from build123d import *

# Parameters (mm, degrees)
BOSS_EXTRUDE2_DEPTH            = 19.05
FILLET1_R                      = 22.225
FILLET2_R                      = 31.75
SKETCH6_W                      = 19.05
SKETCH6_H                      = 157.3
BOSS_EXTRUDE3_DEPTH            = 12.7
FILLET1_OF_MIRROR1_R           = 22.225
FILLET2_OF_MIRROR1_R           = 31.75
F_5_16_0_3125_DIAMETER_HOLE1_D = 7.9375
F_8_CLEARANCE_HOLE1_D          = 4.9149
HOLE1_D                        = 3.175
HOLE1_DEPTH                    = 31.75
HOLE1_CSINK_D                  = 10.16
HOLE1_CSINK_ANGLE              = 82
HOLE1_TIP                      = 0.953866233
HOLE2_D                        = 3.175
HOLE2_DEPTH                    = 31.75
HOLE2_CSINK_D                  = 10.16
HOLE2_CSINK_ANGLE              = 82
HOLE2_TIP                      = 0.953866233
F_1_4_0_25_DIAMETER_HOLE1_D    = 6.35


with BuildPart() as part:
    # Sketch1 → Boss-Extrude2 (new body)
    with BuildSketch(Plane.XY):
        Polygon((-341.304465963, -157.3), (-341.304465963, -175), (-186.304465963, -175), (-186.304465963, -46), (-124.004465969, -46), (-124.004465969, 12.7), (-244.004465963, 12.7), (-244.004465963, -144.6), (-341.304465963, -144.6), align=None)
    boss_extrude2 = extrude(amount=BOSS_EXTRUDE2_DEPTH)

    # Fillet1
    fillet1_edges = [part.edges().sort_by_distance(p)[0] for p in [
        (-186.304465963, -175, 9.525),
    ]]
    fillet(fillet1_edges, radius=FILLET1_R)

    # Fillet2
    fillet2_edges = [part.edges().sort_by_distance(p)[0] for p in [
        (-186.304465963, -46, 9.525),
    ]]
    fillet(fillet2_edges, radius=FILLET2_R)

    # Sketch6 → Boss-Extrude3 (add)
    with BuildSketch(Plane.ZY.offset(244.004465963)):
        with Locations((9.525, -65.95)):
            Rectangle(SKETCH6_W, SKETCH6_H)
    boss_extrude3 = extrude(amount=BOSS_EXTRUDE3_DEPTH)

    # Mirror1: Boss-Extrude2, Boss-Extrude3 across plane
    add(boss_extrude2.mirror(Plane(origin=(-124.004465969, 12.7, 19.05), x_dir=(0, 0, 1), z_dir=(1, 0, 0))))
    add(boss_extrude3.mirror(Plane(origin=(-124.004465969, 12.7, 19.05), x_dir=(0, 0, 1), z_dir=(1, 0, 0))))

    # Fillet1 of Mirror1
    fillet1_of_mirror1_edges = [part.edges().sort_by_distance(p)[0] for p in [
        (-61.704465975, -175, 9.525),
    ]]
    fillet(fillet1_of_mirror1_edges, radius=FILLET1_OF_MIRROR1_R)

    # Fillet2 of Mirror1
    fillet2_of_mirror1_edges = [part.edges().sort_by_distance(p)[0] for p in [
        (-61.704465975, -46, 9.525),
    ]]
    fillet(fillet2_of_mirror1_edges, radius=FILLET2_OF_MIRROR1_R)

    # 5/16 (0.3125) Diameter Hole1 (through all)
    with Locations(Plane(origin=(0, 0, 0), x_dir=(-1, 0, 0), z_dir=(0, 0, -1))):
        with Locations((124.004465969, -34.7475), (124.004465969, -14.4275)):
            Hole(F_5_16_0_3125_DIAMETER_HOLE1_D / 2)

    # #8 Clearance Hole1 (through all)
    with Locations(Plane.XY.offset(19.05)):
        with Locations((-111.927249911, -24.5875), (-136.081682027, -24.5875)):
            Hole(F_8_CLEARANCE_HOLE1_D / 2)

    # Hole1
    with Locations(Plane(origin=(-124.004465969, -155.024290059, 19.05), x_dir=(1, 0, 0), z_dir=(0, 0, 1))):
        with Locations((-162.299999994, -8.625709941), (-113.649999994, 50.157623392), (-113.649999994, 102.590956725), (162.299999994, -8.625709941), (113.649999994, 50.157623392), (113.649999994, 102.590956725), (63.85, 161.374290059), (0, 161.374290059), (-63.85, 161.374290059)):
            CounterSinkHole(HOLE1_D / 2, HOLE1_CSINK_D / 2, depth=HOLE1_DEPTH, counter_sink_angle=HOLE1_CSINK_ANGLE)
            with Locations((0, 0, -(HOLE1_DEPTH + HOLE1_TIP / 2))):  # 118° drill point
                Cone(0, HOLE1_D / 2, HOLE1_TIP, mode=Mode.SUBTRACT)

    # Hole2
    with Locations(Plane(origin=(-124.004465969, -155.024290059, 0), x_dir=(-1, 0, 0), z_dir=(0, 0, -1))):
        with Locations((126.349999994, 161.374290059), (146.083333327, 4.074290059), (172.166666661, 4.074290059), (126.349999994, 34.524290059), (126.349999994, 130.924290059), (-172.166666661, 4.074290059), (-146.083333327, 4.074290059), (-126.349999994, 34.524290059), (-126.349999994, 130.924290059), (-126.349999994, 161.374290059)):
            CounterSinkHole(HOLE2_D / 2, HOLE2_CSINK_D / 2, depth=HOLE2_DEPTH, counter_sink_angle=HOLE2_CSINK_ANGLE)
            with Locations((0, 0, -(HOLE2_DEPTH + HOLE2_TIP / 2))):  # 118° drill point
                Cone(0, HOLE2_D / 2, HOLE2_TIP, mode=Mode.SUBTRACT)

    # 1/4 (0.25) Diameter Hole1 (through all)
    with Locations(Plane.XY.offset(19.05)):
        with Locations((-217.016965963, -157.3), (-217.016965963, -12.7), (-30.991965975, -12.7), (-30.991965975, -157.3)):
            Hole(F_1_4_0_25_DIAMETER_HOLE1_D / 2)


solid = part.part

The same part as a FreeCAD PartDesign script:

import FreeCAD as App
import Part
import Sketcher
Q = App.Units.Quantity


def edges_at(feature, points):
    """Names of the edges that pass closest to the given points."""
    edges = feature.Shape.Edges
    near = lambda p: min(range(len(edges)), key=lambda i: edges[i].distToShape(Part.Vertex(*p))[0])
    return sorted({f"Edge{near(p) + 1}" for p in points})

doc = App.newDocument("Part")
body = doc.addObject("PartDesign::Body", "Body")

sketch1 = body.newObject("Sketcher::SketchObject", "Sketch")
sketch1.AttachmentSupport = (doc.getObject("XY_Plane"), [""])
sketch1.MapMode = "FlatFace"
sketch1.addGeometry([
    Part.LineSegment(App.Vector(-341, -175, 0), App.Vector(-186, -175, 0)),
    Part.LineSegment(App.Vector(-186, -175, 0), App.Vector(-186, -46, 0)),
    Part.LineSegment(App.Vector(-186, -46, 0), App.Vector(-124, -46, 0)),
    Part.LineSegment(App.Vector(-124, -46, 0), App.Vector(-124, 13, 0)),
    Part.LineSegment(App.Vector(-124, 13, 0), App.Vector(-244, 13, 0)),
    Part.LineSegment(App.Vector(-244, 13, 0), App.Vector(-244, -145, 0)),
    Part.LineSegment(App.Vector(-244, -145, 0), App.Vector(-341, -145, 0)),
    Part.LineSegment(App.Vector(-341, -145, 0), App.Vector(-341, -175, 0)),
], False)
sketch1.addConstraint([
    Sketcher.Constraint("Coincident", 0, 2, 1, 1),
    Sketcher.Constraint("Coincident", 1, 2, 2, 1),
    Sketcher.Constraint("Coincident", 2, 2, 3, 1),
    Sketcher.Constraint("Coincident", 3, 2, 4, 1),
    Sketcher.Constraint("Coincident", 4, 2, 5, 1),
    Sketcher.Constraint("Coincident", 5, 2, 6, 1),
    Sketcher.Constraint("Coincident", 6, 2, 7, 1),
    Sketcher.Constraint("Coincident", 7, 2, 0, 1),
    Sketcher.Constraint("Horizontal", 0),
    Sketcher.Constraint("Vertical", 1),
    Sketcher.Constraint("Horizontal", 2),
    Sketcher.Constraint("Vertical", 3),
    Sketcher.Constraint("Horizontal", 4),
    Sketcher.Constraint("Vertical", 5),
    Sketcher.Constraint("Horizontal", 6),
    Sketcher.Constraint("Vertical", 7),
    Sketcher.Constraint("DistanceX", 0, 1, 0, 2, Q("155 mm")),
    Sketcher.Constraint("DistanceX", 4, 2, 4, 1, Q("120 mm")),
    Sketcher.Constraint("DistanceY", 1, 1, 1, 2, Q("129 mm")),
    Sketcher.Constraint("DistanceX", 2, 1, 2, 2, Q("62.3 mm")),
    Sketcher.Constraint("DistanceY", 3, 1, 3, 2, Q("58.7 mm")),
    Sketcher.Constraint("DistanceY", 5, 2, 5, 1, Q("157.3 mm")),
    Sketcher.Constraint("DistanceY", 0, 2, -1, 1, Q("175 mm")),
    Sketcher.Constraint("DistanceX", 0, 2, -1, 1, Q("186.304466 mm")),
])
pad1 = body.newObject("PartDesign::Pad", "Pad")
pad1.Profile = sketch1
pad1.Length = 19.05
doc.recompute()

fillet = body.newObject("PartDesign::Fillet", "Fillet")
fillet.Base = (pad1, edges_at(pad1, [(-186.304, -175, 9.525)]))
fillet.Radius = 22.225
doc.recompute()

fillet2 = body.newObject("PartDesign::Fillet", "Fillet001")
fillet2.Base = (fillet, edges_at(fillet, [(-186.304, -46, 9.525)]))
fillet2.Radius = 31.75

sketch2 = body.newObject("Sketcher::SketchObject", "Sketch001")
sketch2.AttachmentSupport = (doc.getObject("YZ_Plane"), [""])
sketch2.MapMode = "FlatFace"
sketch2.AttachmentOffset = App.Placement(App.Vector(0, 0, -244.004466), App.Rotation())
sketch2.addGeometry([
    Part.LineSegment(App.Vector(13, 0, 0), App.Vector(-145, 0, 0)),
    Part.LineSegment(App.Vector(-145, 0, 0), App.Vector(-145, 19, 0)),
    Part.LineSegment(App.Vector(-145, 19, 0), App.Vector(13, 19, 0)),
    Part.LineSegment(App.Vector(13, 19, 0), App.Vector(13, 0, 0)),
], False)
sketch2.addConstraint([
    Sketcher.Constraint("Coincident", 0, 2, 1, 1),
    Sketcher.Constraint("Coincident", 1, 2, 2, 1),
    Sketcher.Constraint("Coincident", 2, 2, 3, 1),
    Sketcher.Constraint("Coincident", 3, 2, 0, 1),
    Sketcher.Constraint("Horizontal", 0),
    Sketcher.Constraint("Vertical", 1),
    Sketcher.Constraint("Horizontal", 2),
    Sketcher.Constraint("Vertical", 3),
    Sketcher.Constraint("PointOnObject", 0, 2, -1),
    Sketcher.Constraint("DistanceX", 0, 2, 0, 1, Q("157.3 mm")),
    Sketcher.Constraint("DistanceY", 1, 1, 1, 2, Q("19.05 mm")),
    Sketcher.Constraint("DistanceX", 0, 2, -1, 1, Q("144.6 mm")),
])
pad2 = body.newObject("PartDesign::Pad", "Pad001")
pad2.Profile = sketch2
pad2.Length = 12.7
pad2.Reversed = True
doc.recompute()

datumplane = body.newObject("PartDesign::Plane", "DatumPlane")
datumplane.AttachmentSupport = (doc.getObject("YZ_Plane"), [""])
datumplane.MapMode = "FlatFace"
datumplane.AttachmentOffset = App.Placement(App.Vector(0, 0, -124.004466), App.Rotation())
mirrored = body.newObject("PartDesign::Mirrored", "Mirrored")
mirrored.Originals = [pad1, pad2]
mirrored.MirrorPlane = (datumplane, [""])
body.Tip = mirrored
doc.recompute()

fillet3 = body.newObject("PartDesign::Fillet", "Fillet002")
fillet3.Base = (mirrored, edges_at(mirrored, [(-61.704, -175, 9.525)]))
fillet3.Radius = 22.225
doc.recompute()

fillet4 = body.newObject("PartDesign::Fillet", "Fillet003")
fillet4.Base = (fillet3, edges_at(fillet3, [(-61.704, -46, 9.525)]))
fillet4.Radius = 31.75

sketch3 = body.newObject("Sketcher::SketchObject", "Sketch002")
sketch3.AttachmentSupport = (doc.getObject("XY_Plane"), [""])
sketch3.MapMode = "FlatFace"
sketch3.addGeometry([
    Part.Circle(App.Vector(-124, -34.7, 0), App.Vector(0, 0, 1), 4),
    Part.Circle(App.Vector(-124, -14.4, 0), App.Vector(0, 0, 1), 4),
], False)
sketch3.addConstraint([
    Sketcher.Constraint("Equal", 0, 1),
    Sketcher.Constraint("Vertical", 0, 3, 1, 3),
    Sketcher.Constraint("Diameter", 0, Q("7.9375 mm")),
    Sketcher.Constraint("DistanceY", 0, 3, 1, 3, Q("20.32 mm")),
    Sketcher.Constraint("DistanceY", 0, 3, -1, 1, Q("34.7475 mm")),
    Sketcher.Constraint("DistanceX", 0, 3, -1, 1, Q("124.004466 mm")),
])
doc.recompute()
hole = body.newObject("PartDesign::Hole", "Hole")
hole.Profile = sketch3
hole.ThreadType = "None"
hole.Diameter = 7.9375
hole.DepthType = "ThroughAll"
hole.Reversed = True

sketch4 = body.newObject("Sketcher::SketchObject", "Sketch003")
sketch4.AttachmentSupport = (doc.getObject("XY_Plane"), [""])
sketch4.MapMode = "FlatFace"
sketch4.AttachmentOffset = App.Placement(App.Vector(0, 0, 19.05), App.Rotation())
sketch4.addGeometry([
    Part.Circle(App.Vector(-111.9, -24.6, 0), App.Vector(0, 0, 1), 2.5),
    Part.Circle(App.Vector(-136.1, -24.6, 0), App.Vector(0, 0, 1), 2.5),
], False)
sketch4.addConstraint([
    Sketcher.Constraint("Equal", 0, 1),
    Sketcher.Constraint("Horizontal", 0, 3, 1, 3),
    Sketcher.Constraint("Diameter", 0, Q("4.9149 mm")),
    Sketcher.Constraint("DistanceY", 0, 3, -1, 1, Q("24.5875 mm")),
    Sketcher.Constraint("DistanceX", 0, 3, -1, 1, Q("111.92725 mm")),
    Sketcher.Constraint("DistanceX", 1, 3, -1, 1, Q("136.081682 mm")),
])
doc.recompute()
hole2 = body.newObject("PartDesign::Hole", "Hole001")
hole2.Profile = sketch4
hole2.ThreadType = "None"
hole2.Diameter = 4.9149
hole2.DepthType = "ThroughAll"

sketch5 = body.newObject("Sketcher::SketchObject", "Sketch004")
sketch5.AttachmentSupport = (doc.getObject("XY_Plane"), [""])
sketch5.MapMode = "FlatFace"
sketch5.AttachmentOffset = App.Placement(App.Vector(0, 0, 19.05), App.Rotation())
sketch5.addGeometry([
    Part.Circle(App.Vector(-286.3, -163.7, 0), App.Vector(0, 0, 1), 1.6),
    Part.Circle(App.Vector(-237.7, -104.9, 0), App.Vector(0, 0, 1), 1.6),
    Part.Circle(App.Vector(-237.7, -52.4, 0), App.Vector(0, 0, 1), 1.6),
    Part.Circle(App.Vector(38.3, -163.7, 0), App.Vector(0, 0, 1), 1.6),
    Part.Circle(App.Vector(-10.4, -104.9, 0), App.Vector(0, 0, 1), 1.6),
    Part.Circle(App.Vector(-10.4, -52.4, 0), App.Vector(0, 0, 1), 1.6),
    Part.Circle(App.Vector(-60.2, 6.3, 0), App.Vector(0, 0, 1), 1.6),
    Part.Circle(App.Vector(-124, 6.3, 0), App.Vector(0, 0, 1), 1.6),
    Part.Circle(App.Vector(-187.9, 6.3, 0), App.Vector(0, 0, 1), 1.6),
], False)
sketch5.addConstraint([
    Sketcher.Constraint("Equal", 0, 1),
    Sketcher.Constraint("Equal", 1, 2),
    Sketcher.Constraint("Equal", 2, 3),
    Sketcher.Constraint("Equal", 3, 4),
    Sketcher.Constraint("Equal", 4, 5),
    Sketcher.Constraint("Equal", 5, 6),
    Sketcher.Constraint("Equal", 6, 7),
    Sketcher.Constraint("Equal", 7, 8),
    Sketcher.Constraint("Horizontal", 0, 3, 3, 3),
    Sketcher.Constraint("Horizontal", 1, 3, 4, 3),
    Sketcher.Constraint("Horizontal", 2, 3, 5, 3),
    Sketcher.Constraint("Horizontal", 6, 3, 7, 3),
    Sketcher.Constraint("Horizontal", 7, 3, 8, 3),
    Sketcher.Constraint("Vertical", 1, 3, 2, 3),
    Sketcher.Constraint("Vertical", 4, 3, 5, 3),
    Sketcher.Constraint("Diameter", 0, Q("3.175 mm")),
    Sketcher.Constraint("DistanceY", 3, 3, 6, 3, Q("170 mm")),
    Sketcher.Constraint("DistanceX", 0, 3, 3, 3, Q("324.6 mm")),
    Sketcher.Constraint("DistanceX", 1, 3, 4, 3, Q("227.3 mm")),
    Sketcher.Constraint("DistanceX", 6, 3, 5, 3, Q("49.8 mm")),
    Sketcher.Constraint("DistanceX", 2, 3, 8, 3, Q("49.8 mm")),
    Sketcher.Constraint("DistanceY", 0, 3, -1, 1, Q("163.65 mm")),
    Sketcher.Constraint("DistanceX", 0, 3, 1, 3, Q("48.65 mm")),
    Sketcher.Constraint("DistanceX", 7, 3, 6, 3, Q("63.85 mm")),
    Sketcher.Constraint("DistanceX", 0, 3, -1, 1, Q("286.304466 mm")),
    Sketcher.Constraint("DistanceY", 1, 3, -1, 1, Q("104.866667 mm")),
    Sketcher.Constraint("DistanceY", 2, 3, -1, 1, Q("52.433333 mm")),
])
doc.recompute()
hole3 = body.newObject("PartDesign::Hole", "Hole002")
hole3.Profile = sketch5
hole3.ThreadType = "None"
hole3.Diameter = 3.175
hole3.DepthType = "Dimension"
hole3.Depth = 31.75
hole3.DrillPoint = "Angled"
hole3.DrillPointAngle = 118
hole3.HoleCutType = "Countersink"
hole3.HoleCutDiameter = 10.16
hole3.HoleCutCountersinkAngle = 82

sketch6 = body.newObject("Sketcher::SketchObject", "Sketch005")
sketch6.AttachmentSupport = (doc.getObject("XY_Plane"), [""])
sketch6.MapMode = "FlatFace"
sketch6.addGeometry([
    Part.Circle(App.Vector(-250.4, 6.3, 0), App.Vector(0, 0, 1), 1.6),
    Part.Circle(App.Vector(-270.1, -150.9, 0), App.Vector(0, 0, 1), 1.6),
    Part.Circle(App.Vector(-296.2, -150.9, 0), App.Vector(0, 0, 1), 1.6),
    Part.Circle(App.Vector(-250.4, -120.5, 0), App.Vector(0, 0, 1), 1.6),
    Part.Circle(App.Vector(-250.4, -24.1, 0), App.Vector(0, 0, 1), 1.6),
    Part.Circle(App.Vector(48.2, -150.9, 0), App.Vector(0, 0, 1), 1.6),
    Part.Circle(App.Vector(22.1, -150.9, 0), App.Vector(0, 0, 1), 1.6),
    Part.Circle(App.Vector(2.3, -120.5, 0), App.Vector(0, 0, 1), 1.6),
    Part.Circle(App.Vector(2.3, -24.1, 0), App.Vector(0, 0, 1), 1.6),
    Part.Circle(App.Vector(2.3, 6.3, 0), App.Vector(0, 0, 1), 1.6),
], False)
sketch6.addConstraint([
    Sketcher.Constraint("Equal", 0, 1),
    Sketcher.Constraint("Equal", 1, 2),
    Sketcher.Constraint("Equal", 2, 3),
    Sketcher.Constraint("Equal", 3, 4),
    Sketcher.Constraint("Equal", 4, 5),
    Sketcher.Constraint("Equal", 5, 6),
    Sketcher.Constraint("Equal", 6, 7),
    Sketcher.Constraint("Equal", 7, 8),
    Sketcher.Constraint("Equal", 8, 9),
    Sketcher.Constraint("Horizontal", 1, 3, 2, 3),
    Sketcher.Constraint("Horizontal", 2, 3, 5, 3),
    Sketcher.Constraint("Horizontal", 5, 3, 6, 3),
    Sketcher.Constraint("Horizontal", 3, 3, 7, 3),
    Sketcher.Constraint("Horizontal", 4, 3, 8, 3),
    Sketcher.Constraint("Horizontal", 0, 3, 9, 3),
    Sketcher.Constraint("Vertical", 0, 3, 3, 3),
    Sketcher.Constraint("Vertical", 3, 3, 4, 3),
    Sketcher.Constraint("Vertical", 7, 3, 8, 3),
    Sketcher.Constraint("Vertical", 8, 3, 9, 3),
    Sketcher.Constraint("Diameter", 0, Q("3.175 mm")),
    Sketcher.Constraint("DistanceY", 3, 3, -1, 1, Q("120.5 mm")),
    Sketcher.Constraint("DistanceY", 4, 3, -1, 1, Q("24.1 mm")),
    Sketcher.Constraint("DistanceY", 1, 3, 0, 3, Q("157.3 mm")),
    Sketcher.Constraint("DistanceX", 3, 3, 7, 3, Q("252.7 mm")),
    Sketcher.Constraint("DistanceY", -1, 1, 0, 3, Q("6.35 mm")),
    Sketcher.Constraint("DistanceX", 1, 3, 5, 3, Q("318.25 mm")),
    Sketcher.Constraint("DistanceX", 1, 3, -1, 1, Q("270.087799 mm")),
    Sketcher.Constraint("DistanceX", 0, 3, -1, 1, Q("250.354466 mm")),
    Sketcher.Constraint("DistanceX", 2, 3, -1, 1, Q("296.171133 mm")),
    Sketcher.Constraint("DistanceX", -1, 1, 6, 3, Q("22.078867 mm")),
])
doc.recompute()
hole4 = body.newObject("PartDesign::Hole", "Hole003")
hole4.Profile = sketch6
hole4.ThreadType = "None"
hole4.Diameter = 3.175
hole4.DepthType = "Dimension"
hole4.Depth = 31.75
hole4.DrillPoint = "Angled"
hole4.DrillPointAngle = 118
hole4.HoleCutType = "Countersink"
hole4.HoleCutDiameter = 10.16
hole4.HoleCutCountersinkAngle = 82
hole4.Reversed = True

sketch7 = body.newObject("Sketcher::SketchObject", "Sketch006")
sketch7.AttachmentSupport = (doc.getObject("XY_Plane"), [""])
sketch7.MapMode = "FlatFace"
sketch7.AttachmentOffset = App.Placement(App.Vector(0, 0, 19.05), App.Rotation())
sketch7.addGeometry([
    Part.Circle(App.Vector(-217, -157.3, 0), App.Vector(0, 0, 1), 3.2),
    Part.Circle(App.Vector(-217, -12.7, 0), App.Vector(0, 0, 1), 3.2),
    Part.Circle(App.Vector(-31, -12.7, 0), App.Vector(0, 0, 1), 3.2),
    Part.Circle(App.Vector(-31, -157.3, 0), App.Vector(0, 0, 1), 3.2),
], False)
sketch7.addConstraint([
    Sketcher.Constraint("Equal", 0, 1),
    Sketcher.Constraint("Equal", 1, 2),
    Sketcher.Constraint("Equal", 2, 3),
    Sketcher.Constraint("Horizontal", 1, 3, 2, 3),
    Sketcher.Constraint("Horizontal", 0, 3, 3, 3),
    Sketcher.Constraint("Vertical", 0, 3, 1, 3),
    Sketcher.Constraint("Vertical", 2, 3, 3, 3),
    Sketcher.Constraint("Diameter", 0, Q("6.35 mm")),
    Sketcher.Constraint("DistanceY", 0, 3, -1, 1, Q("157.3 mm")),
    Sketcher.Constraint("DistanceY", 1, 3, -1, 1, Q("12.7 mm")),
    Sketcher.Constraint("DistanceX", 1, 3, 2, 3, Q("186.025 mm")),
    Sketcher.Constraint("DistanceX", 0, 3, -1, 1, Q("217.016966 mm")),
])
doc.recompute()
hole5 = body.newObject("PartDesign::Hole", "Hole004")
hole5.Profile = sketch7
hole5.ThreadType = "None"
hole5.Diameter = 6.35
hole5.DepthType = "ThroughAll"

doc.recompute()
